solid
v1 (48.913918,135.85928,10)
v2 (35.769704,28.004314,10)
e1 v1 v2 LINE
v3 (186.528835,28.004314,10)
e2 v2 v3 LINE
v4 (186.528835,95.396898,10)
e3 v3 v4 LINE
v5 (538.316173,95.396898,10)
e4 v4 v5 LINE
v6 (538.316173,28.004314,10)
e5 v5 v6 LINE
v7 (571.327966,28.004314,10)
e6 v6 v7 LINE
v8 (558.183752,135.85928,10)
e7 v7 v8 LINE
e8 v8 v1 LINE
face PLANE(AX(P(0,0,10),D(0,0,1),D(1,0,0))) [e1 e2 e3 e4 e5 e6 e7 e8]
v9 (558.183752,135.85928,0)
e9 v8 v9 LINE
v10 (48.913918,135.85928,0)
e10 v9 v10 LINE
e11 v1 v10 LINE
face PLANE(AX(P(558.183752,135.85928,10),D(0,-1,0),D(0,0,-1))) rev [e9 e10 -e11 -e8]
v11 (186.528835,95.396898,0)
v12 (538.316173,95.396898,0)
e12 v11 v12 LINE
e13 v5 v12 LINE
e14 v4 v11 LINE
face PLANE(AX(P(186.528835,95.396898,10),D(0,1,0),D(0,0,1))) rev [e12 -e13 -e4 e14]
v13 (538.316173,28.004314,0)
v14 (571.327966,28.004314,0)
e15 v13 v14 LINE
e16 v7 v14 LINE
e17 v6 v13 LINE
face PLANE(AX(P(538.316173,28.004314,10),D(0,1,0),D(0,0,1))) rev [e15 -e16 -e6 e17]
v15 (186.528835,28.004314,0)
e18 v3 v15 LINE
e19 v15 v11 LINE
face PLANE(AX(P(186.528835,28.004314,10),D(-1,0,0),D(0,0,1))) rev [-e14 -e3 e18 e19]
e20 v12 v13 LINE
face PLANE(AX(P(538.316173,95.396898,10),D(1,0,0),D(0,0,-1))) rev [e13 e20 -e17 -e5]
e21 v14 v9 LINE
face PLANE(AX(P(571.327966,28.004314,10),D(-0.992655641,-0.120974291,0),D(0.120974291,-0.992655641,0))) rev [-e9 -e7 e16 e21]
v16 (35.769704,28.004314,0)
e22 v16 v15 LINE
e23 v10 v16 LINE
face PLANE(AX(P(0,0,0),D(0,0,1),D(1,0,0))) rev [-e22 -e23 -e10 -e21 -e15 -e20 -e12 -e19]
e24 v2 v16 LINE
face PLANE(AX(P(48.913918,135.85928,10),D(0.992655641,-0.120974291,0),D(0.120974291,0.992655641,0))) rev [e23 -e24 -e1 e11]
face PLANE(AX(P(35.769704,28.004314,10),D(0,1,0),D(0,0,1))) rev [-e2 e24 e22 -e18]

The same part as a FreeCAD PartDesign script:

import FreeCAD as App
import Part
import Sketcher
from FreeCAD import Vector
Q = App.Units.Quantity


def add_polygon(sketch, points):
    """Adds a closed chain of lines whose ends are joined by coincident constraints."""
    first, n = sketch.GeometryCount, len(points)
    for a, b in zip(points, points[1:] + points[:1]):
        sketch.addGeometry(Part.LineSegment(App.Vector(*a, 0), App.Vector(*b, 0)), False)
    for i in range(n):
        sketch.addConstraint(Sketcher.Constraint("Coincident", first + i, 2, first + (i + 1) % n, 1))

doc = App.newDocument("Part")
body = doc.addObject("PartDesign::Body", "Body")

sketch1 = body.newObject("Sketcher::SketchObject", "Sketch")
sketch1.AttachmentSupport = (doc.getObject("XY_Plane"), [""])
sketch1.MapMode = "FlatFace"
add_polygon(sketch1, [(558, 136), (49, 136), (36, 28), (187, 28), (187, 95), (538, 95), (538, 28), (571, 28)])
sketch1.addConstraint([
    Sketcher.Constraint("Horizontal", 0),
    Sketcher.Constraint("Horizontal", 2),
    Sketcher.Constraint("Vertical", 3),
    Sketcher.Constraint("Horizontal", 4),
    Sketcher.Constraint("Vertical", 5),
    Sketcher.Constraint("Horizontal", 6),
    Sketcher.Constraint("Horizontal", 2, 2, 5, 2),
    Sketcher.Constraint("Equal", 1, 7),
    Sketcher.Constraint("DistanceX", 2, 1, 2, 2, Q("150.759131 mm")),
    Sketcher.Constraint("DistanceX", 0, 2, 0, 1, Q("509.269834 mm")),
    Sketcher.Constraint("DistanceX", 4, 1, 4, 2, Q("351.787338 mm")),
    Sketcher.Constraint("DistanceX", 6, 1, 6, 2, Q("33.011793 mm")),
    Sketcher.Constraint("DistanceY", 3, 1, 3, 2, Q("67.392583 mm")),
    Sketcher.Constraint("DistanceX", -1, 1, 0, 2, Q("48.913918 mm")),
    Sketcher.Constraint("DistanceY", -1, 1, 0, 2, Q("135.85928 mm")),
    Sketcher.Constraint("Distance", 1, Q("108.652952 mm")),
])
pad1 = body.newObject("PartDesign::Pad", "Pad")
pad1.Profile = sketch1
pad1.Length = 10

doc.recompute()
